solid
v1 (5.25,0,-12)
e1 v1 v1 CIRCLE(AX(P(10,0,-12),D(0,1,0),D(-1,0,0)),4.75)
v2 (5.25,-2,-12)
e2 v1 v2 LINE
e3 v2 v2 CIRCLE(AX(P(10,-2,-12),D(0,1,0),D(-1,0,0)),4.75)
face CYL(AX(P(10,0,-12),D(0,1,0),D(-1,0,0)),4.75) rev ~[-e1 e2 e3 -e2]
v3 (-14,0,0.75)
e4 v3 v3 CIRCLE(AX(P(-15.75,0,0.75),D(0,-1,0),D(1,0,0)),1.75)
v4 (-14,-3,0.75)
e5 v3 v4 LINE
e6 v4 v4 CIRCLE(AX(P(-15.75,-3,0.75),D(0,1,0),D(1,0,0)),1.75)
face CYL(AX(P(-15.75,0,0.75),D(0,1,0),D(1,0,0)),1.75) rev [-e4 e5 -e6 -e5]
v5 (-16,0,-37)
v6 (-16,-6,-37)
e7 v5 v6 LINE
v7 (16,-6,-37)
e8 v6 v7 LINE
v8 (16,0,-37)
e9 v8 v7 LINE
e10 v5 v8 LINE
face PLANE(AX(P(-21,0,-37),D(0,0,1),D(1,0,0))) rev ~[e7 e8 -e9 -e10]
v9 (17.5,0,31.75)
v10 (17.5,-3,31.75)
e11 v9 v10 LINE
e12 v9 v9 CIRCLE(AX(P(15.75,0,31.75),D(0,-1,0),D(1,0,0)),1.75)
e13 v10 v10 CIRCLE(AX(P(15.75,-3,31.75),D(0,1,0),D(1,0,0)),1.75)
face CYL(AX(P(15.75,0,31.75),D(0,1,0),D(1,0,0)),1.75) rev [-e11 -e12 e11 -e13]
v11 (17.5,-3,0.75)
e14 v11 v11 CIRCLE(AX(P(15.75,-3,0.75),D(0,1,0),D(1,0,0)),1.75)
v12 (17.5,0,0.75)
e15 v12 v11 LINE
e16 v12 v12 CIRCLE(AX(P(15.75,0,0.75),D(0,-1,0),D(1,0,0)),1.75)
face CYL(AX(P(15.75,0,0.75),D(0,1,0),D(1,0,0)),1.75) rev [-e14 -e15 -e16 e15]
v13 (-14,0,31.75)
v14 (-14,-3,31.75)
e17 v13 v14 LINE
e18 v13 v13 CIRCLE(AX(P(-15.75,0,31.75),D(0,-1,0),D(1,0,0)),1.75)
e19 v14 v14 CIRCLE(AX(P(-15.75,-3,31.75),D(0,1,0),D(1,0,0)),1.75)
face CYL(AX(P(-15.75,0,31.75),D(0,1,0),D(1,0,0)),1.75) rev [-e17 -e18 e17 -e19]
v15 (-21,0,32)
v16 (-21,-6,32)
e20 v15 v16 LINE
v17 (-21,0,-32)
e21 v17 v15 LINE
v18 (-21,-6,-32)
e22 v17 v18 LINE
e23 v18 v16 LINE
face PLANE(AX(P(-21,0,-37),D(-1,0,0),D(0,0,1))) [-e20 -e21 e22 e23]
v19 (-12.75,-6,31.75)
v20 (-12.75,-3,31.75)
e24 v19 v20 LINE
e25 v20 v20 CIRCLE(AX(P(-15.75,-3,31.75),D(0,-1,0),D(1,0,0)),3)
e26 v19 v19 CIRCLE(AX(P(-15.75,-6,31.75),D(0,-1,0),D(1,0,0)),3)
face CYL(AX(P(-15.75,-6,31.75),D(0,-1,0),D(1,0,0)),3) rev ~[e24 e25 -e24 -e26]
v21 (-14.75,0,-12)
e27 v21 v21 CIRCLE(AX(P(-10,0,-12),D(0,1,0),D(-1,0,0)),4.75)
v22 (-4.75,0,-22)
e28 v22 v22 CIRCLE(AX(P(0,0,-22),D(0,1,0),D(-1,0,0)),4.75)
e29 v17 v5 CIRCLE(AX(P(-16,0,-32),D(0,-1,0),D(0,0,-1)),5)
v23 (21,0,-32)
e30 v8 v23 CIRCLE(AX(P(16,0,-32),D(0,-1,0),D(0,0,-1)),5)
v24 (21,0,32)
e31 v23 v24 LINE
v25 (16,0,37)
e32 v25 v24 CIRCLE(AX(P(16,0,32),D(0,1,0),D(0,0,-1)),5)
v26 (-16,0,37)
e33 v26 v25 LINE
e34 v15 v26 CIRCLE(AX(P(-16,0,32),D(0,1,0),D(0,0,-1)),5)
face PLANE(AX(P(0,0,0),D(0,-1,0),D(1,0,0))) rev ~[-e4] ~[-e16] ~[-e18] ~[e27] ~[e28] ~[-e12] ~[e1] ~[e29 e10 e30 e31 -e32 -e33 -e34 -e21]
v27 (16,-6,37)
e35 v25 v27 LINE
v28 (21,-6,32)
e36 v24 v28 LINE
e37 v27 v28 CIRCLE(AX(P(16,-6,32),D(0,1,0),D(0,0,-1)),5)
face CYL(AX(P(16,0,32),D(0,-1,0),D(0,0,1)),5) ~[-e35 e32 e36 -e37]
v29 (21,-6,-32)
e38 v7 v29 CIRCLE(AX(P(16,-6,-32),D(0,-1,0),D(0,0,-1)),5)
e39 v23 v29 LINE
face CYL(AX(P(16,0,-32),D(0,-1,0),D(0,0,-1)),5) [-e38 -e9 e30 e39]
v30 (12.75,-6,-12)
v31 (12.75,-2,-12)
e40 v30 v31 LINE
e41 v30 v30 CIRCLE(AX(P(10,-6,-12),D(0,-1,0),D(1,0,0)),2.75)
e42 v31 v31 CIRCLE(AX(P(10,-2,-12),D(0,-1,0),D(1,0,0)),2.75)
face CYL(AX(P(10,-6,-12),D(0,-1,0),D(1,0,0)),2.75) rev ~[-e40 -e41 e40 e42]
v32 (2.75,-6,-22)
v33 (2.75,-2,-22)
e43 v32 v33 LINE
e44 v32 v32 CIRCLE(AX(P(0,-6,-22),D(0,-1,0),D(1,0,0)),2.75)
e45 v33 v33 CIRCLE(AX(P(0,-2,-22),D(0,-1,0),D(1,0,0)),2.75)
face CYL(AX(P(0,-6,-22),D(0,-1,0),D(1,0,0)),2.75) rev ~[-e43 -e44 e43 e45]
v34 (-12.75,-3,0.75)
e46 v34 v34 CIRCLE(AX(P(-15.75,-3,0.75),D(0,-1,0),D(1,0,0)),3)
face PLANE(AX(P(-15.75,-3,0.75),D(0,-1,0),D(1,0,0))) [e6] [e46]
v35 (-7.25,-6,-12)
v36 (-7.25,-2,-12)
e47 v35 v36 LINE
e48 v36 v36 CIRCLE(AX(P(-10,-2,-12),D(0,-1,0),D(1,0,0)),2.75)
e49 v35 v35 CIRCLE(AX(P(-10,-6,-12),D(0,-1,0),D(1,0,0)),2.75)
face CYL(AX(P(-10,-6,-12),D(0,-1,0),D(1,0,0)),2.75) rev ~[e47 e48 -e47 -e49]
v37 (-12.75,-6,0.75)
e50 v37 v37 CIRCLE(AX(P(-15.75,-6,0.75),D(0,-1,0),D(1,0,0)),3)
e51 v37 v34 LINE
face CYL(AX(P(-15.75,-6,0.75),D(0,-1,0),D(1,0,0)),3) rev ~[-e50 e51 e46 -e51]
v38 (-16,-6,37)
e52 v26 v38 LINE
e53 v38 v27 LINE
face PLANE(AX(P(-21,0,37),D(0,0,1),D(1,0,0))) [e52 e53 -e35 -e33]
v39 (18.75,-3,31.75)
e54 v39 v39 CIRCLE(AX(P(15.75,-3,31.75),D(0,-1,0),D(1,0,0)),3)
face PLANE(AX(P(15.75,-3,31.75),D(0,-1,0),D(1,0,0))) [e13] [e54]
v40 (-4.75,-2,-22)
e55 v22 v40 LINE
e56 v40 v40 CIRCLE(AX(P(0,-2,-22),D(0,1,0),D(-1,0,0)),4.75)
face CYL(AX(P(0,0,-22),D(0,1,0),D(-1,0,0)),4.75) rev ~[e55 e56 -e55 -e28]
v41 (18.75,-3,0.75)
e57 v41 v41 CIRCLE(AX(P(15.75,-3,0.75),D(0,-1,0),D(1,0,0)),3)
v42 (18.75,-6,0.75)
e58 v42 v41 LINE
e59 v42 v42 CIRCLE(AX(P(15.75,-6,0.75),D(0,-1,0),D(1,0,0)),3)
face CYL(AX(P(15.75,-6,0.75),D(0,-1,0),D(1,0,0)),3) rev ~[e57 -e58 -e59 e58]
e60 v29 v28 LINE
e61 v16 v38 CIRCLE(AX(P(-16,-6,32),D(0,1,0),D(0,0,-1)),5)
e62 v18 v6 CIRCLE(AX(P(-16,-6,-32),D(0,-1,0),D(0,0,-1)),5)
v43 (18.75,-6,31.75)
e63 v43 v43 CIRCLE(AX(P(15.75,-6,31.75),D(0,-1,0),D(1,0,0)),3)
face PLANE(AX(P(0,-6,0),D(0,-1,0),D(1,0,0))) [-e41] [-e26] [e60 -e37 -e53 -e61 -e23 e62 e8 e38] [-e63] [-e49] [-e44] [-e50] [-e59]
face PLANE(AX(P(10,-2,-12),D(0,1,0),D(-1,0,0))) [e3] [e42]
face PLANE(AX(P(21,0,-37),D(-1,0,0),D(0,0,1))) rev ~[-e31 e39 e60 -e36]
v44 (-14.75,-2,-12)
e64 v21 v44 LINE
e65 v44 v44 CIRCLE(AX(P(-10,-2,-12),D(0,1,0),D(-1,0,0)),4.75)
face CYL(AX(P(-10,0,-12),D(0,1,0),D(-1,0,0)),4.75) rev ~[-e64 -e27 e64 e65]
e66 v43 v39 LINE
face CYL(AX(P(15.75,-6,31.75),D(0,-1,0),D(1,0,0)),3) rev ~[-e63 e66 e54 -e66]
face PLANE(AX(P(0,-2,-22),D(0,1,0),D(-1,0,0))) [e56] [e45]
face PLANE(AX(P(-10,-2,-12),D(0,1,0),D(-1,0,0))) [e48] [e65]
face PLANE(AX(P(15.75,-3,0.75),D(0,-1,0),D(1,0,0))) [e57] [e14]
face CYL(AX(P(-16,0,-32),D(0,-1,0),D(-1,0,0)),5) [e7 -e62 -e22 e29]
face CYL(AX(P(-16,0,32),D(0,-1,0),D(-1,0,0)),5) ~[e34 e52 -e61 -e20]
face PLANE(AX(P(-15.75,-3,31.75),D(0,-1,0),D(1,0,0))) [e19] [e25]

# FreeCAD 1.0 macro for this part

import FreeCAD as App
import Part
import Sketcher
from FreeCAD import Vector


def edges_at(feature, points):
    """Names of the edges that pass closest to the given points."""
    edges = feature.Shape.Edges
    near = lambda p: min(range(len(edges)), key=lambda i: edges[i].distToShape(Part.Vertex(*p))[0])
    return sorted({f"Edge{near(p) + 1}" for p in points})


def add_polygon(sketch, points):
    """Adds a closed chain of lines whose ends are joined by coincident constraints."""
    first, n = sketch.GeometryCount, len(points)
    for a, b in zip(points, points[1:] + points[:1]):
        sketch.addGeometry(Part.LineSegment(App.Vector(*a, 0), App.Vector(*b, 0)), False)
    for i in range(n):
        sketch.addConstraint(Sketcher.Constraint("Coincident", first + i, 2, first + (i + 1) % n, 1))

doc = App.newDocument("Part")
body = doc.addObject("PartDesign::Body", "Body")

# Sketch on XZ plane
sketch1 = body.newObject("Sketcher::SketchObject", "Sketch")
sketch1.AttachmentSupport = (doc.getObject("XZ_Plane"), [""])
sketch1.MapMode = "FlatFace"
add_polygon(sketch1, [(-21, 37), (-21, -37), (21, -37), (21, 37)])  # lines 0-3
sketch1.addGeometry(Part.Circle(Vector(-15.8, 0.8, 0), Vector(0, 0, 1), 1.8), False)  # 4
sketch1.addGeometry(Part.Circle(Vector(15.8, 0.8, 0), Vector(0, 0, 1), 1.8), False)  # 5
sketch1.addGeometry(Part.Circle(Vector(-15.8, 31.8, 0), Vector(0, 0, 1), 1.8), False)  # 6
sketch1.addGeometry(Part.Circle(Vector(15.8, 31.8, 0), Vector(0, 0, 1), 1.8), False)  # 7
sketch1.addConstraint([
    Sketcher.Constraint("Vertical", 0),
    Sketcher.Constraint("Horizontal", 1),
    Sketcher.Constraint("Vertical", 2),
    Sketcher.Constraint("Horizontal", 3),
    Sketcher.Constraint("Equal", 4, 5),
    Sketcher.Constraint("Equal", 5, 6),
    Sketcher.Constraint("Equal", 6, 7),
    Sketcher.Constraint("Symmetric", 0, 2, 2, 2, -1, 1),
    Sketcher.Constraint("Symmetric", 4, 3, 5, 3, -2),
    Sketcher.Constraint("Symmetric", 6, 3, 7, 3, -2),
    Sketcher.Constraint("Vertical", 4, 3, 6, 3),
    Sketcher.Constraint("Diameter", 4, 3.5),
    Sketcher.Constraint("DistanceX", 1, 1, 1, 2, 42.0),
    Sketcher.Constraint("DistanceY", 0, 2, 0, 1, 74.0),
    Sketcher.Constraint("DistanceY", 4, 3, 6, 3, 31.0),
    Sketcher.Constraint("DistanceX", 4, 3, 5, 3, 31.5),
    Sketcher.Constraint("DistanceY", -1, 1, 4, 3, 0.75),
])
pad1 = body.newObject("PartDesign::Pad", "Pad")
pad1.Profile = sketch1
pad1.Length = 6
doc.recompute()

fillet = body.newObject("PartDesign::Fillet", "Fillet")
fillet.Base = (pad1, edges_at(pad1, [
    (-21, -3, -37),
    (-21, -3, 37),
    (21, -3, 37),
    (21, -3, -37),
]))
fillet.Radius = 5

# Sketch on XZ plane
sketch2 = body.newObject("Sketcher::SketchObject", "Sketch001")
sketch2.AttachmentSupport = (doc.getObject("XZ_Plane"), [""])
sketch2.MapMode = "FlatFace"
sketch2.AttachmentOffset = App.Placement(Vector(0, 0, 6), App.Rotation())
sketch2.addGeometry([
    Part.Circle(Vector(-15.8, 0.8, 0), Vector(0, 0, 1), 3),
    Part.Circle(Vector(15.8, 0.8, 0), Vector(0, 0, 1), 3),
    Part.Circle(Vector(-15.8, 31.8, 0), Vector(0, 0, 1), 3),
    Part.Circle(Vector(15.8, 31.8, 0), Vector(0, 0, 1), 3),
], False)
sketch2.addConstraint([
    Sketcher.Constraint("Equal", 0, 1),
    Sketcher.Constraint("Equal", 1, 2),
    Sketcher.Constraint("Equal", 2, 3),
    Sketcher.Constraint("Symmetric", 0, 3, 1, 3, -2),
    Sketcher.Constraint("Symmetric", 2, 3, 3, 3, -2),
    Sketcher.Constraint("Vertical", 0, 3, 2, 3),
    Sketcher.Constraint("Diameter", 0, 6.0),
    Sketcher.Constraint("DistanceY", 0, 3, 2, 3, 31.0),
    Sketcher.Constraint("DistanceX", 0, 3, 1, 3, 31.5),
    Sketcher.Constraint("DistanceY", -1, 1, 0, 3, 0.75),
])
pocket1 = body.newObject("PartDesign::Pocket", "Pocket")
pocket1.Profile = sketch2
pocket1.Length = 3

# Sketch on XZ plane
sketch3 = body.newObject("Sketcher::SketchObject", "Sketch002")
sketch3.AttachmentSupport = (doc.getObject("XZ_Plane"), [""])
sketch3.MapMode = "FlatFace"
sketch3.AttachmentOffset = App.Placement(Vector(0, 0, 6), App.Rotation())
sketch3.addGeometry([
    Part.Circle(Vector(0, -22, 0), Vector(0, 0, 1), 2.8),
    Part.Circle(Vector(-10, -12, 0), Vector(0, 0, 1), 2.8),
    Part.Circle(Vector(10, -12, 0), Vector(0, 0, 1), 2.8),
], False)
sketch3.addConstraint([
    Sketcher.Constraint("Equal", 0, 1),
    Sketcher.Constraint("Equal", 1, 2),
    Sketcher.Constraint("Symmetric", 1, 3, 2, 3, -2),
    Sketcher.Constraint("PointOnObject", 0, 3, -2),
    Sketcher.Constraint("Diameter", 0, 5.5),
    Sketcher.Constraint("DistanceY", 0, 3, -1, 1, 22.0),
    Sketcher.Constraint("DistanceX", 1, 3, -1, 1, 10.0),
    Sketcher.Constraint("DistanceY", 1, 3, -1, 1, 12.0),
])
pocket2 = body.newObject("PartDesign::Pocket", "Pocket001")
pocket2.Profile = sketch3
pocket2.Type = "ThroughAll"

# Sketch on XZ plane
sketch4 = body.newObject("Sketcher::SketchObject", "Sketch003")
sketch4.AttachmentSupport = (doc.getObject("XZ_Plane"), [""])
sketch4.MapMode = "FlatFace"
sketch4.addGeometry([
    Part.Circle(Vector(10, -12, 0), Vector(0, 0, 1), 4.8),
    Part.Circle(Vector(-10, -12, 0), Vector(0, 0, 1), 4.8),
    Part.Circle(Vector(0, -22, 0), Vector(0, 0, 1), 4.8),
], False)
sketch4.addConstraint([
    Sketcher.Constraint("Equal", 0, 1),
    Sketcher.Constraint("Equal", 1, 2),
    Sketcher.Constraint("Symmetric", 0, 3, 1, 3, -2),
    Sketcher.Constraint("PointOnObject", 2, 3, -2),
    Sketcher.Constraint("Diameter", 0, 9.5),
    Sketcher.Constraint("DistanceX", -1, 1, 0, 3, 10.0),
    Sketcher.Constraint("DistanceY", 0, 3, -1, 1, 12.0),
    Sketcher.Constraint("DistanceY", 2, 3, -1, 1, 22.0),
])
pocket3 = body.newObject("PartDesign::Pocket", "Pocket002")
pocket3.Profile = sketch4
pocket3.Length = 2
pocket3.Reversed = True

doc.recompute()
